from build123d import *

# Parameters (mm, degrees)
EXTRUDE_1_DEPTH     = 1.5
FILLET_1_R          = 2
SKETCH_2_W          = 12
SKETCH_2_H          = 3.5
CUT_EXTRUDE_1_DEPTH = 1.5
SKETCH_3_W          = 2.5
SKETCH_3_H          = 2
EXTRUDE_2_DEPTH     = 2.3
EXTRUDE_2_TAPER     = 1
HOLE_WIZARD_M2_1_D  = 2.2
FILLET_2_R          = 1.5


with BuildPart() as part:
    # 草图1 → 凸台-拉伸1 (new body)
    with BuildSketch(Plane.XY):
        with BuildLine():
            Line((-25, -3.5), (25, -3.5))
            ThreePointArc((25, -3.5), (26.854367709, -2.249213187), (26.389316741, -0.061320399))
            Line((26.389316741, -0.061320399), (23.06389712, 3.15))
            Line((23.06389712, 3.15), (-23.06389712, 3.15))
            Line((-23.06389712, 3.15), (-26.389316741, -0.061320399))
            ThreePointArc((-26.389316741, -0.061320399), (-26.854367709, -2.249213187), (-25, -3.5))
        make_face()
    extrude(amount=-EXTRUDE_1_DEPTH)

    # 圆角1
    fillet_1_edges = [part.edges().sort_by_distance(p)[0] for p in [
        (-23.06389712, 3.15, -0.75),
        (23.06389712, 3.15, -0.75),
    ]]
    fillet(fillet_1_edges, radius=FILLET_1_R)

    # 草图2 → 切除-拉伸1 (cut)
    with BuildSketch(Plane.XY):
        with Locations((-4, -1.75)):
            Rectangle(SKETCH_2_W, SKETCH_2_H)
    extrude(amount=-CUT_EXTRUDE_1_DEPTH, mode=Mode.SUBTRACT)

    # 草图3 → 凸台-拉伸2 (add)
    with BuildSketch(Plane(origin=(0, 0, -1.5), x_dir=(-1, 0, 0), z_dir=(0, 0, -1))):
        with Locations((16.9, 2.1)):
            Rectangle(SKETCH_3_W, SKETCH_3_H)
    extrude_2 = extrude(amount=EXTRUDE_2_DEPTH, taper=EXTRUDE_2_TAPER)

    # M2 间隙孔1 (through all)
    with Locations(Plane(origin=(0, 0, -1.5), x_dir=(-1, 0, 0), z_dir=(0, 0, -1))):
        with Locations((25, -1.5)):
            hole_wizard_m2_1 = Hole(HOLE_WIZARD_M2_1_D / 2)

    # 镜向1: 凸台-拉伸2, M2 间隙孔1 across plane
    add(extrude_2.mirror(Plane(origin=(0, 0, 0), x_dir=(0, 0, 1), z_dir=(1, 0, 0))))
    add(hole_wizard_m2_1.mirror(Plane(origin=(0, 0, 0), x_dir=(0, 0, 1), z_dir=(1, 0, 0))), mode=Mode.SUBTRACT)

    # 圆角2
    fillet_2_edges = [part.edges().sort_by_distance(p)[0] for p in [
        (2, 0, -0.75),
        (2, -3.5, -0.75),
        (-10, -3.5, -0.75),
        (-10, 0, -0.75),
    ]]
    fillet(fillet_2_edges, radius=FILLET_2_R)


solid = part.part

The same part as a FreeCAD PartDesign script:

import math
import FreeCAD as App
import Part
import Sketcher
from FreeCAD import Vector
Q = App.Units.Quantity


def edges_at(feature, points):
    """Names of the edges that pass closest to the given points."""
    edges = feature.Shape.Edges
    near = lambda p: min(range(len(edges)), key=lambda i: edges[i].distToShape(Part.Vertex(*p))[0])
    return sorted({f"Edge{near(p) + 1}" for p in points})

doc = App.newDocument("Part")
body = doc.addObject("PartDesign::Body", "Body")

sketch1 = body.newObject("Sketcher::SketchObject", "Sketch")
sketch1.AttachmentSupport = (doc.getObject("XY_Plane"), [""])
sketch1.MapMode = "FlatFace"
sketch1.addGeometry(Part.LineSegment(Vector(-25, -3.5, 0), Vector(25, -3.5, 0)), False)
sketch1.addGeometry(Part.ArcOfCircle(Part.Circle(Vector(25, -1.5, 0), Vector(0, 0, 1), 2), math.radians(-90), math.radians(46)), False)
sketch1.addGeometry(Part.LineSegment(Vector(26.4, -0.1, 0), Vector(23.1, 3.1, 0)), False)
sketch1.addGeometry(Part.LineSegment(Vector(23.1, 3.1, 0), Vector(-23.1, 3.1, 0)), False)
sketch1.addGeometry(Part.LineSegment(Vector(-23.1, 3.1, 0), Vector(-26.4, -0.1, 0)), False)
sketch1.addGeometry(Part.ArcOfCircle(Part.Circle(Vector(-25, -1.5, 0), Vector(0, 0, 1), 2), math.radians(134), math.radians(270)), False)
sketch1.addConstraint(Sketcher.Constraint("Tangent", 0, 2, 1, 1))
sketch1.addConstraint(Sketcher.Constraint("Tangent", 1, 2, 2, 1))
sketch1.addConstraint(Sketcher.Constraint("Coincident", 2, 2, 3, 1))
sketch1.addConstraint(Sketcher.Constraint("Coincident", 3, 2, 4, 1))
sketch1.addConstraint(Sketcher.Constraint("Tangent", 4, 2, 5, 1))
sketch1.addConstraint(Sketcher.Constraint("Tangent", 5, 2, 0, 1))
sketch1.addConstraint(Sketcher.Constraint("Horizontal", 0))
sketch1.addConstraint(Sketcher.Constraint("Horizontal", 3))
sketch1.addConstraint(Sketcher.Constraint("Equal", 1, 5))
sketch1.addConstraint(Sketcher.Constraint("Symmetric", 1, 2, 4, 2, -2))
sketch1.addConstraint(Sketcher.Constraint("Radius", 1, Q("2 mm")))
sketch1.addConstraint(Sketcher.Constraint("DistanceX", 0, 1, 0, 2, Q("50 mm")))
sketch1.addConstraint(Sketcher.Constraint("Angle", 2, Q("136 deg")))
sketch1.addConstraint(Sketcher.Constraint("DistanceY", 1, 3, -1, 1, Q("1.5 mm")))
sketch1.addConstraint(Sketcher.Constraint("DistanceY", -1, 1, 2, 2, Q("3.15 mm")))
pad1 = body.newObject("PartDesign::Pad", "Pad")
pad1.Profile = sketch1
pad1.Length = 1.5
pad1.Reversed = True
doc.recompute()

fillet = body.newObject("PartDesign::Fillet", "Fillet")
fillet.Base = (pad1, edges_at(pad1, [(-23.064, 3.15, -0.75), (23.064, 3.15, -0.75)]))
fillet.Radius = 2

sketch2 = body.newObject("Sketcher::SketchObject", "Sketch001")
sketch2.AttachmentSupport = (doc.getObject("XY_Plane"), [""])
sketch2.MapMode = "FlatFace"
sketch2.addGeometry(Part.LineSegment(Vector(-10, 0, 0), Vector(-10, -3.5, 0)), False)
sketch2.addGeometry(Part.LineSegment(Vector(-10, -3.5, 0), Vector(2, -3.5, 0)), False)
sketch2.addGeometry(Part.LineSegment(Vector(2, -3.5, 0), Vector(2, 0, 0)), False)
sketch2.addGeometry(Part.LineSegment(Vector(2, 0, 0), Vector(-10, 0, 0)), False)
sketch2.addConstraint(Sketcher.Constraint("Coincident", 0, 2, 1, 1))
sketch2.addConstraint(Sketcher.Constraint("Coincident", 1, 2, 2, 1))
sketch2.addConstraint(Sketcher.Constraint("Coincident", 2, 2, 3, 1))
sketch2.addConstraint(Sketcher.Constraint("Coincident", 3, 2, 0, 1))
sketch2.addConstraint(Sketcher.Constraint("Vertical", 0))
sketch2.addConstraint(Sketcher.Constraint("Horizontal", 1))
sketch2.addConstraint(Sketcher.Constraint("Vertical", 2))
sketch2.addConstraint(Sketcher.Constraint("Horizontal", 3))
sketch2.addConstraint(Sketcher.Constraint("PointOnObject", 2, 2, -1))
sketch2.addConstraint(Sketcher.Constraint("DistanceX", 1, 1, 1, 2, Q("12 mm")))
sketch2.addConstraint(Sketcher.Constraint("DistanceY", 0, 2, 0, 1, Q("3.5 mm")))
sketch2.addConstraint(Sketcher.Constraint("DistanceX", 0, 2, -1, 1, Q("10 mm")))
pocket1 = body.newObject("PartDesign::Pocket", "Pocket")
pocket1.Profile = sketch2
pocket1.Length = 1.5

sketch3 = body.newObject("Sketcher::SketchObject", "Sketch002")
sketch3.AttachmentSupport = (doc.getObject("XY_Plane"), [""])
sketch3.MapMode = "FlatFace"
sketch3.AttachmentOffset = App.Placement(Vector(0, 0, -1.5), App.Rotation())
sketch3.addGeometry(Part.LineSegment(Vector(-15.7, 3.1, 0), Vector(-15.7, 1.1, 0)), False)
sketch3.addGeometry(Part.LineSegment(Vector(-15.7, 1.1, 0), Vector(-18.1, 1.1, 0)), False)
sketch3.addGeometry(Part.LineSegment(Vector(-18.1, 1.1, 0), Vector(-18.1, 3.1, 0)), False)
sketch3.addGeometry(Part.LineSegment(Vector(-18.1, 3.1, 0), Vector(-15.7, 3.1, 0)), False)
sketch3.addConstraint(Sketcher.Constraint("Coincident", 0, 2, 1, 1))
sketch3.addConstraint(Sketcher.Constraint("Coincident", 1, 2, 2, 1))
sketch3.addConstraint(Sketcher.Constraint("Coincident", 2, 2, 3, 1))
sketch3.addConstraint(Sketcher.Constraint("Coincident", 3, 2, 0, 1))
sketch3.addConstraint(Sketcher.Constraint("Vertical", 0))
sketch3.addConstraint(Sketcher.Constraint("Horizontal", 1))
sketch3.addConstraint(Sketcher.Constraint("Vertical", 2))
sketch3.addConstraint(Sketcher.Constraint("Horizontal", 3))
sketch3.addConstraint(Sketcher.Constraint("DistanceY", 0, 2, 0, 1, Q("2 mm")))
sketch3.addConstraint(Sketcher.Constraint("DistanceX", 1, 2, 1, 1, Q("2.5 mm")))
sketch3.addConstraint(Sketcher.Constraint("DistanceY", -1, 1, 0, 2, Q("1.1 mm")))
sketch3.addConstraint(Sketcher.Constraint("DistanceX", 0, 2, -1, 1, Q("15.65 mm")))
pad2 = body.newObject("PartDesign::Pad", "Pad001")
pad2.Profile = sketch3
pad2.Length = 2.3
pad2.Reversed = True
pad2.TaperAngle = -1

sketch4 = body.newObject("Sketcher::SketchObject", "Sketch003")
sketch4.AttachmentSupport = (doc.getObject("XY_Plane"), [""])
sketch4.MapMode = "FlatFace"
sketch4.AttachmentOffset = App.Placement(Vector(0, 0, -1.5), App.Rotation())
sketch4.addGeometry(Part.Circle(Vector(-25, -1.5, 0), Vector(0, 0, 1), 1.1), False)
sketch4.addConstraint(Sketcher.Constraint("Diameter", 0, Q("2.2 mm")))
sketch4.addConstraint(Sketcher.Constraint("DistanceX", 0, 3, -1, 1, Q("25 mm")))
sketch4.addConstraint(Sketcher.Constraint("DistanceY", 0, 3, -1, 1, Q("1.5 mm")))
doc.recompute()
hole = body.newObject("PartDesign::Hole", "Hole")
hole.Profile = sketch4
hole.ThreadType = "None"
hole.Diameter = 2.2
hole.DepthType = "ThroughAll"
hole.Reversed = True
doc.recompute()

mirrored = body.newObject("PartDesign::Mirrored", "Mirrored")
mirrored.Originals = [pad2, hole]
mirrored.MirrorPlane = (doc.getObject("YZ_Plane"), [""])
body.Tip = mirrored
doc.recompute()

fillet2 = body.newObject("PartDesign::Fillet", "Fillet001")
fillet2.Base = (mirrored, edges_at(mirrored, [
    (2, 0, -0.75),
    (2, -3.5, -0.75),
    (-10, -3.5, -0.75),
    (-10, 0, -0.75),
]))
fillet2.Radius = 1.5

doc.recompute()
